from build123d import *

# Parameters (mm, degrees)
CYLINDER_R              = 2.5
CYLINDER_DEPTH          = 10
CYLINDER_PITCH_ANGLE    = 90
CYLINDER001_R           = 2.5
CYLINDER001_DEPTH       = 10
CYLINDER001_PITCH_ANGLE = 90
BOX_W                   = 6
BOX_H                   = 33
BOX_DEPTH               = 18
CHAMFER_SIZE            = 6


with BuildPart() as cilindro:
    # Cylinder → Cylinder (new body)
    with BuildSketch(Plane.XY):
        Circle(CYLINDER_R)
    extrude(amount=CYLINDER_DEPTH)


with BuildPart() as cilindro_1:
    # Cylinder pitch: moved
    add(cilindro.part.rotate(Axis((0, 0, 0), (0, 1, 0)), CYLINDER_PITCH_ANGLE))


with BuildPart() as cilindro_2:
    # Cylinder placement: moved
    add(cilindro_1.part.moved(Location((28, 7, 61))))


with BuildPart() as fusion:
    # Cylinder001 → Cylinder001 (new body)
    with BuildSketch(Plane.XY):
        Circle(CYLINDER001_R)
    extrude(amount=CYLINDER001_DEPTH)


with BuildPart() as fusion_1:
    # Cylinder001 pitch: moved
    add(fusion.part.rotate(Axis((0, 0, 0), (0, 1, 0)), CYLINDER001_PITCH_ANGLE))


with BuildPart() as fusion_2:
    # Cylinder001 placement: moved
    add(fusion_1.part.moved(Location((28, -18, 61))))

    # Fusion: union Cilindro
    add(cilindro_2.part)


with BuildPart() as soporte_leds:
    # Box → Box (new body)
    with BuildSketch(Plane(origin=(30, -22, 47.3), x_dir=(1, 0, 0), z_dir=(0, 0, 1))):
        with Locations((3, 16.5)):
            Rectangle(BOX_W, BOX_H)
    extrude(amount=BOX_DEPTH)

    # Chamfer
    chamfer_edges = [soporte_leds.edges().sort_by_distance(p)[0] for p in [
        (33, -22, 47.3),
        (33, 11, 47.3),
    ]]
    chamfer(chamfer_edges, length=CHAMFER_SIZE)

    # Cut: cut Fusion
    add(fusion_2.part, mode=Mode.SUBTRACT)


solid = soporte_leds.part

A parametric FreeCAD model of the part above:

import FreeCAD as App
import Part
import Sketcher
Q = App.Units.Quantity


def edges_at(feature, points):
    """Names of the edges that pass closest to the given points."""
    edges = feature.Shape.Edges
    near = lambda p: min(range(len(edges)), key=lambda i: edges[i].distToShape(Part.Vertex(*p))[0])
    return sorted({f"Edge{near(p) + 1}" for p in points})


def add_polygon(sketch, points):
    """Adds a closed chain of lines whose ends are joined by coincident constraints."""
    first, n = sketch.GeometryCount, len(points)
    for a, b in zip(points, points[1:] + points[:1]):
        sketch.addGeometry(Part.LineSegment(App.Vector(*a, 0), App.Vector(*b, 0)), False)
    for i in range(n):
        sketch.addConstraint(Sketcher.Constraint("Coincident", first + i, 2, first + (i + 1) % n, 1))

doc = App.newDocument("Part")
body = doc.addObject("PartDesign::Body", "Body")

# Sketch on XY plane
sketch1 = body.newObject("Sketcher::SketchObject", "Sketch")
sketch1.AttachmentSupport = (doc.getObject("XY_Plane"), [""])
sketch1.MapMode = "FlatFace"
sketch1.addGeometry(Part.Circle(App.Vector(0, 0, 0), App.Vector(0, 0, 1), 2.5), False)
sketch1.addConstraint(Sketcher.Constraint("Coincident", 0, 3, -1, 1))
sketch1.addConstraint(Sketcher.Constraint("Diameter", 0, Q("5 mm")))
pad1 = body.newObject("PartDesign::Pad", "Pad")
pad1.Profile = sketch1
pad1.Length = 10
body2 = doc.addObject("PartDesign::Body", "Body001")
doc.recompute()

body.Placement = App.Placement(App.Vector(0, 0, 0), App.Rotation(App.Vector(0, 1, 0), 90))
boolean = body2.newObject("PartDesign::Boolean", "Boolean")
boolean.Type = "Fuse"
boolean.addObjects([body])
body3 = doc.addObject("PartDesign::Body", "Body002")
doc.recompute()

body2.Placement = App.Placement(App.Vector(28, 7, 61), App.Rotation(App.Vector(0, 0, 1), 0))
boolean2 = body3.newObject("PartDesign::Boolean", "Boolean001")
boolean2.Type = "Fuse"
boolean2.addObjects([body2])
body4 = doc.addObject("PartDesign::Body", "Body003")

# Sketch on XY plane
sketch2 = body4.newObject("Sketcher::SketchObject", "Sketch001")
sketch2.AttachmentSupport = (doc.getObject("XY_Plane003"), [""])
sketch2.MapMode = "FlatFace"
sketch2.addGeometry(Part.Circle(App.Vector(0, 0, 0), App.Vector(0, 0, 1), 2.5), False)
sketch2.addConstraint(Sketcher.Constraint("Coincident", 0, 3, -1, 1))
sketch2.addConstraint(Sketcher.Constraint("Diameter", 0, Q("5 mm")))
pad2 = body4.newObject("PartDesign::Pad", "Pad001")
pad2.Profile = sketch2
pad2.Length = 10
body5 = doc.addObject("PartDesign::Body", "Body004")
doc.recompute()

body4.Placement = App.Placement(App.Vector(0, 0, 0), App.Rotation(App.Vector(0, 1, 0), 90))
boolean3 = body5.newObject("PartDesign::Boolean", "Boolean002")
boolean3.Type = "Fuse"
boolean3.addObjects([body4])
body6 = doc.addObject("PartDesign::Body", "Body005")
body6.AllowCompound = True
doc.recompute()

body5.Placement = App.Placement(App.Vector(28, -18, 61), App.Rotation(App.Vector(0, 0, 1), 0))
boolean4 = body6.newObject("PartDesign::Boolean", "Boolean003")
boolean4.Type = "Fuse"
boolean4.addObjects([body5])
doc.recompute()

boolean5 = body6.newObject("PartDesign::Boolean", "Boolean004")
boolean5.Type = "Fuse"
boolean5.addObjects([body3])
body7 = doc.addObject("PartDesign::Body", "Body006")

# Sketch on XY plane
sketch3 = body7.newObject("Sketcher::SketchObject", "Sketch002")
sketch3.AttachmentSupport = (doc.getObject("XY_Plane006"), [""])
sketch3.MapMode = "FlatFace"
sketch3.AttachmentOffset = App.Placement(App.Vector(0, 0, 47.3), App.Rotation())
add_polygon(sketch3, [(30, 11), (30, -22), (36, -22), (36, 11)])  # lines 0-3
sketch3.addConstraint(Sketcher.Constraint("Vertical", 0))
sketch3.addConstraint(Sketcher.Constraint("Horizontal", 1))
sketch3.addConstraint(Sketcher.Constraint("Vertical", 2))
sketch3.addConstraint(Sketcher.Constraint("Horizontal", 3))
sketch3.addConstraint(Sketcher.Constraint("DistanceX", 1, 1, 1, 2, Q("6 mm")))
sketch3.addConstraint(Sketcher.Constraint("DistanceY", 0, 2, 0, 1, Q("33 mm")))
sketch3.addConstraint(Sketcher.Constraint("DistanceX", -1, 1, 0, 2, Q("30 mm")))
sketch3.addConstraint(Sketcher.Constraint("DistanceY", 0, 2, -1, 1, Q("22 mm")))
pad3 = body7.newObject("PartDesign::Pad", "Pad002")
pad3.Profile = sketch3
pad3.Length = 18
doc.recompute()

chamfer = body7.newObject("PartDesign::Chamfer", "Chamfer")
chamfer.Base = (pad3, edges_at(pad3, [(33, -22, 47.3), (33, 11, 47.3)]))
chamfer.Size = 6
doc.recompute()

boolean6 = body7.newObject("PartDesign::Boolean", "Boolean005")
boolean6.Type = "Cut"
boolean6.addObjects([body6])

doc.recompute()
